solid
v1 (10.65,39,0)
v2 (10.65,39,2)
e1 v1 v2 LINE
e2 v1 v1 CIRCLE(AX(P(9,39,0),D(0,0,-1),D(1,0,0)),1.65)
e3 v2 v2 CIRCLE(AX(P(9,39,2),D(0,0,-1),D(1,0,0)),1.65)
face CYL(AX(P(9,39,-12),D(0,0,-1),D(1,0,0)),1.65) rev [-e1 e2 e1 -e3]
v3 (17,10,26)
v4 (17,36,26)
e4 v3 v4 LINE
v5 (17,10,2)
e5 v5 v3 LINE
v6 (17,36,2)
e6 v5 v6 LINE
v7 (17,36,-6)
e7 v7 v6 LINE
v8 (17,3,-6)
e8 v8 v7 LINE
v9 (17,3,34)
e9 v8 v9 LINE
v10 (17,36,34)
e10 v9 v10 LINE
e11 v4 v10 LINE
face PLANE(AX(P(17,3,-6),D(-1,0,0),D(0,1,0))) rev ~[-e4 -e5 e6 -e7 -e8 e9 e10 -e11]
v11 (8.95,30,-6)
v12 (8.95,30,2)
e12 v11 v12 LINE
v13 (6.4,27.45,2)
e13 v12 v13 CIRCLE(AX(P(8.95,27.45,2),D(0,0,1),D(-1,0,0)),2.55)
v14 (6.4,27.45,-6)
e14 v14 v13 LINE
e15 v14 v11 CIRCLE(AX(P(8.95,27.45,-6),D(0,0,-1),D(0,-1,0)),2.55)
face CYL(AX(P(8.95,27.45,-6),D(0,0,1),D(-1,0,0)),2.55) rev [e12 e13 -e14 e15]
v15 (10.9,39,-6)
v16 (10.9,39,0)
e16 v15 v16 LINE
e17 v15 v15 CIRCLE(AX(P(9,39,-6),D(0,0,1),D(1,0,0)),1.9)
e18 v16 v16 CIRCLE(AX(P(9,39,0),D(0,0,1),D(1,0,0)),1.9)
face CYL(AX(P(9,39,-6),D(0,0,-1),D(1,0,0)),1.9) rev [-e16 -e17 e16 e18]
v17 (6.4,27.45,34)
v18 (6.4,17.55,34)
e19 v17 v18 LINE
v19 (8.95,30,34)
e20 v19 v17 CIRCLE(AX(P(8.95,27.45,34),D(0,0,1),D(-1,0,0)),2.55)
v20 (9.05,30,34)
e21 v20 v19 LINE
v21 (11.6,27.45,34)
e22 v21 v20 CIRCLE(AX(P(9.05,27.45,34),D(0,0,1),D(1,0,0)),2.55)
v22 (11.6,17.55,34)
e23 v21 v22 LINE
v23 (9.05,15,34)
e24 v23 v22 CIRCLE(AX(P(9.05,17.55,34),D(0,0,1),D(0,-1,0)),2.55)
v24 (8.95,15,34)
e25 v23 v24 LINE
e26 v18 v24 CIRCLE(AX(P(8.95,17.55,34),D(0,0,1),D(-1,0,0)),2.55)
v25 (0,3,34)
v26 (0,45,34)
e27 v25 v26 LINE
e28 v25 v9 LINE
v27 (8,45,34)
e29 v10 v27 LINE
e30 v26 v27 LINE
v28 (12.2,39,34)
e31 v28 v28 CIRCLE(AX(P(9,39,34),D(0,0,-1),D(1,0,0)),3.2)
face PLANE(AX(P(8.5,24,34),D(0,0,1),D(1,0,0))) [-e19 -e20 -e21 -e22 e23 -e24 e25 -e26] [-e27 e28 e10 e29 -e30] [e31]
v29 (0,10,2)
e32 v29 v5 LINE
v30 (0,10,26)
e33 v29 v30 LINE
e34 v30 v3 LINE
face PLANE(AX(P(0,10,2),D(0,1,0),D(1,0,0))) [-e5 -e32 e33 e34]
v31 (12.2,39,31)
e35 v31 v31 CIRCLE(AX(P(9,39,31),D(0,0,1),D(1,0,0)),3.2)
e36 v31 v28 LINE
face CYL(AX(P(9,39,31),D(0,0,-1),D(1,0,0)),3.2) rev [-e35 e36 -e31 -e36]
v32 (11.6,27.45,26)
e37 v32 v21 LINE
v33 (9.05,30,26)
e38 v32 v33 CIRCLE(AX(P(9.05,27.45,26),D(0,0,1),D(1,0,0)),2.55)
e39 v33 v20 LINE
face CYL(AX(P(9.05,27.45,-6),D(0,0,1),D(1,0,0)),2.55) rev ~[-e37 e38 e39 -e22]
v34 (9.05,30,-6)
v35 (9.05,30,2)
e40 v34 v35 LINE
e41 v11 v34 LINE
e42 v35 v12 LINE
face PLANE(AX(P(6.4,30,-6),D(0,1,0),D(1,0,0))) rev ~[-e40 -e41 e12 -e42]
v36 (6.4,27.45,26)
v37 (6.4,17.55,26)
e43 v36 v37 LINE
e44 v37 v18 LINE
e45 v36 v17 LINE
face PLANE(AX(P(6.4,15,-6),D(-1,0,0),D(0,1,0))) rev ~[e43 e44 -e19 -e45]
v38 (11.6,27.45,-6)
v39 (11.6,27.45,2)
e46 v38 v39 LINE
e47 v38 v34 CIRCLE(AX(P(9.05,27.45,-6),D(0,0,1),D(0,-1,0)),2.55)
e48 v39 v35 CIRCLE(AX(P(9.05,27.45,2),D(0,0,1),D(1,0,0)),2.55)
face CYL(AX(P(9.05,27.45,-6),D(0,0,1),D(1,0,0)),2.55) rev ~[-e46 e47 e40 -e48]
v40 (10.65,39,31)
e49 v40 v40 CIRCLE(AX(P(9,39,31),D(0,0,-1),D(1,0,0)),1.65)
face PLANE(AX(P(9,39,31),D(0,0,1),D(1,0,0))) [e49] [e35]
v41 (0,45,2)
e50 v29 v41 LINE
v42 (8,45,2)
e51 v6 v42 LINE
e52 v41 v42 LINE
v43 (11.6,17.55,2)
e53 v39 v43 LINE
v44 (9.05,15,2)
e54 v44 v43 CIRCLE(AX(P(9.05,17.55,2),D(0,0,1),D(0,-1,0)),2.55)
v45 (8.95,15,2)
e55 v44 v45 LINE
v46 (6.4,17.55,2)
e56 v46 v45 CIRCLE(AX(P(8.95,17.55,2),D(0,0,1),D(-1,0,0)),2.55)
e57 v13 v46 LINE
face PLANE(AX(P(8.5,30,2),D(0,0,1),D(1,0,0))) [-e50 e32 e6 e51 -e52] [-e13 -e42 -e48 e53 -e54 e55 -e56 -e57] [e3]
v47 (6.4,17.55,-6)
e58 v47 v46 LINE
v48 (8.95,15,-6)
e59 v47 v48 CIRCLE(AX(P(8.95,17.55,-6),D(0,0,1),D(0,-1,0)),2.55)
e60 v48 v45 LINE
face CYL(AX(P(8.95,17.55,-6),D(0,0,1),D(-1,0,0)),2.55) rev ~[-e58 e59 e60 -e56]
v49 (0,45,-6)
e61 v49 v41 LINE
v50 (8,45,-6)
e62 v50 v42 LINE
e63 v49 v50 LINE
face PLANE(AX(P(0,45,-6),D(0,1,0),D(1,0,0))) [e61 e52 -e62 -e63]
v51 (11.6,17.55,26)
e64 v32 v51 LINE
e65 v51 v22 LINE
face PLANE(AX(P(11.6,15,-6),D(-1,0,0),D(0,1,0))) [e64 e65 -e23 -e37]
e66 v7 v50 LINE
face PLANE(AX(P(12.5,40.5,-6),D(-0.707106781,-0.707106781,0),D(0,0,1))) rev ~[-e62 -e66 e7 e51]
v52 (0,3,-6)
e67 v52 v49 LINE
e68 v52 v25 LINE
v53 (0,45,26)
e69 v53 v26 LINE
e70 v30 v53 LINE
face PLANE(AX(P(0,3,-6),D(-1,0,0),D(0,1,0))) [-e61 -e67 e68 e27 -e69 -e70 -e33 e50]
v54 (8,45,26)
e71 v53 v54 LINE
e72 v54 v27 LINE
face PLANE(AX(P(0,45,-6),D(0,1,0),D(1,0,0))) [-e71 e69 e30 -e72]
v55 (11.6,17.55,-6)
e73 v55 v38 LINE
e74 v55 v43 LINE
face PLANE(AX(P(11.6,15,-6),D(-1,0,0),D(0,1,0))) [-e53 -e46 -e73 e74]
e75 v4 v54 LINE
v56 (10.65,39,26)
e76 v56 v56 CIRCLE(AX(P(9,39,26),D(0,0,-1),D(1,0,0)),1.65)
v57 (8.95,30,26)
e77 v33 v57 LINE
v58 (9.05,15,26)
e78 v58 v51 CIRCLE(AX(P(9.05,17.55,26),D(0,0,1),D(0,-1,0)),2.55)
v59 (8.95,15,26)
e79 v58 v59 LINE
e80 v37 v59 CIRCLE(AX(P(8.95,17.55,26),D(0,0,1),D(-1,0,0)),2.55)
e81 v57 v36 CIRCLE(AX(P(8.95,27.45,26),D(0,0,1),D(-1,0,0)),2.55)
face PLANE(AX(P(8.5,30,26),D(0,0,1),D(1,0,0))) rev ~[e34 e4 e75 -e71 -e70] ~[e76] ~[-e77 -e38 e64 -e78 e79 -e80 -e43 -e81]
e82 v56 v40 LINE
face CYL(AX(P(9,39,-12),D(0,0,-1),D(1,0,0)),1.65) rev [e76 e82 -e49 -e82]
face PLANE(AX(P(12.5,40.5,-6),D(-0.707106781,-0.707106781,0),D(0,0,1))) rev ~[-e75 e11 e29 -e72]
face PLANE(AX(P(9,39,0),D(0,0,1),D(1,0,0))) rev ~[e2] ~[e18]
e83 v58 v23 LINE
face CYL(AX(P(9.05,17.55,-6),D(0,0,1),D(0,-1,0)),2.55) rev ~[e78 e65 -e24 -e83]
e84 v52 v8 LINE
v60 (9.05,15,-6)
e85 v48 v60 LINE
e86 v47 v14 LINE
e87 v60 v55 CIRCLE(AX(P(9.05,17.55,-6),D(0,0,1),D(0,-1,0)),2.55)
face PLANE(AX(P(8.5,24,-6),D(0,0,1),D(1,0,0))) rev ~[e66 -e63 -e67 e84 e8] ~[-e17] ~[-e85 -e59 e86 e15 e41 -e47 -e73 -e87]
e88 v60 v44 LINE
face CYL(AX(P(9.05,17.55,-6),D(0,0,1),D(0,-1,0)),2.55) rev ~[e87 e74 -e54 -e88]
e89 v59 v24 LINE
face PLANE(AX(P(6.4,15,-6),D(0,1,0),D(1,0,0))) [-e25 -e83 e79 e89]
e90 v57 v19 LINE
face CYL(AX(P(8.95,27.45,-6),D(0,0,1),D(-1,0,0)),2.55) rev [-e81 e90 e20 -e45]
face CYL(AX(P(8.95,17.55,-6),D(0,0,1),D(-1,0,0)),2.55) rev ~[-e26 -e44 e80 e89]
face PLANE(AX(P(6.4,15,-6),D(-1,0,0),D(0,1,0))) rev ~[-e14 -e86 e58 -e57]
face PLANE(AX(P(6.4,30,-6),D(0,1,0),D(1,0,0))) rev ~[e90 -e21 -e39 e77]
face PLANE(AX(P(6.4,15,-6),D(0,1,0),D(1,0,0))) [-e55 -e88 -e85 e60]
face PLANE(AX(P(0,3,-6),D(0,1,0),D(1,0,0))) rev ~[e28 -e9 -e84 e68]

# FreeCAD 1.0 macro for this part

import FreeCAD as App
import Part
import Sketcher


def edges_at(feature, points):
    """Names of the edges that pass closest to the given points."""
    edges = feature.Shape.Edges
    near = lambda p: min(range(len(edges)), key=lambda i: edges[i].distToShape(Part.Vertex(*p))[0])
    return sorted({f"Edge{near(p) + 1}" for p in points})

doc = App.newDocument("Part")
body = doc.addObject("PartDesign::Body", "Body")

# Sketch on XY plane
sketch1 = doc.addObject("Sketcher::SketchObject", "Sketch")
body.addObject(sketch1)
sketch1.AttachmentSupport = (doc.XY_Plane, [""])
sketch1.MapMode = "FlatFace"
sketch1.AttachmentOffset = App.Placement(App.Vector(0, 0, -6), App.Rotation())
sketch1.addGeometry([
    Part.LineSegment(App.Vector(6, 30, 0), App.Vector(6, 15, 0)),
    Part.LineSegment(App.Vector(6, 15, 0), App.Vector(12, 15, 0)),
    Part.LineSegment(App.Vector(12, 15, 0), App.Vector(12, 30, 0)),
    Part.LineSegment(App.Vector(12, 30, 0), App.Vector(6, 30, 0)),
], False)
sketch1.addConstraint([
    Sketcher.Constraint("Coincident", 0, 2, 1, 1),
    Sketcher.Constraint("Coincident", 1, 2, 2, 1),
    Sketcher.Constraint("Coincident", 2, 2, 3, 1),
    Sketcher.Constraint("Coincident", 3, 2, 0, 1),
    Sketcher.Constraint("Vertical", 0),
    Sketcher.Constraint("Horizontal", 1),
    Sketcher.Constraint("Vertical", 2),
    Sketcher.Constraint("Horizontal", 3),
    Sketcher.Constraint("DistanceY", 0, 2, 0, 1, 15.0),
    Sketcher.Constraint("DistanceX", 1, 1, 1, 2, 5.2),
    Sketcher.Constraint("DistanceY", -1, 1, 0, 2, 15.0),
    Sketcher.Constraint("DistanceX", -1, 1, 0, 2, 6.4),
])
pad1 = doc.addObject("PartDesign::Pad", "Pad")
body.addObject(pad1)
pad1.Profile = sketch1
pad1.Length = 67
doc.recompute()

fillet = doc.addObject("PartDesign::Fillet", "Fillet")
body.addObject(fillet)
fillet.Base = (pad1, edges_at(pad1, [
    (6.4, 15, 27.5),
    (6.4, 30, 27.5),
    (11.6, 15, 27.5),
    (11.6, 30, 27.5),
]))
fillet.Radius = 2.55
body2 = doc.addObject("PartDesign::Body", "Body001")

# Sketch on XY plane
sketch2 = doc.addObject("Sketcher::SketchObject", "Sketch001")
body2.addObject(sketch2)
sketch2.AttachmentSupport = (doc.getObject("XY_Plane001"), [""])
sketch2.MapMode = "FlatFace"
sketch2.AttachmentOffset = App.Placement(App.Vector(0, 0, 2), App.Rotation())
sketch2.addGeometry([
    Part.LineSegment(App.Vector(0, 50, 0), App.Vector(0, 10, 0)),
    Part.LineSegment(App.Vector(0, 10, 0), App.Vector(17, 10, 0)),
    Part.LineSegment(App.Vector(17, 10, 0), App.Vector(17, 50, 0)),
    Part.LineSegment(App.Vector(17, 50, 0), App.Vector(0, 50, 0)),
], False)
sketch2.addConstraint([
    Sketcher.Constraint("Coincident", 0, 2, 1, 1),
    Sketcher.Constraint("Coincident", 1, 2, 2, 1),
    Sketcher.Constraint("Coincident", 2, 2, 3, 1),
    Sketcher.Constraint("Coincident", 3, 2, 0, 1),
    Sketcher.Constraint("Vertical", 0),
    Sketcher.Constraint("Horizontal", 1),
    Sketcher.Constraint("Vertical", 2),
    Sketcher.Constraint("Horizontal", 3),
    Sketcher.Constraint("PointOnObject", 0, 2, -2),
    Sketcher.Constraint("DistanceX", 1, 1, 1, 2, 17.0),
    Sketcher.Constraint("DistanceY", 0, 2, 0, 1, 40.0),
    Sketcher.Constraint("DistanceY", -1, 1, 0, 2, 10.0),
])
pad2 = doc.addObject("PartDesign::Pad", "Pad001")
body2.addObject(pad2)
pad2.Profile = sketch2
pad2.Length = 24
body3 = doc.addObject("PartDesign::Body", "Body002")

# Sketch on XY plane
sketch3 = doc.addObject("Sketcher::SketchObject", "Sketch002")
body3.addObject(sketch3)
sketch3.AttachmentSupport = (doc.getObject("XY_Plane002"), [""])
sketch3.MapMode = "FlatFace"
sketch3.AttachmentOffset = App.Placement(App.Vector(0, 0, 31), App.Rotation())
sketch3.addGeometry(Part.Circle(App.Vector(9, 39, 0), App.Vector(0, 0, 1), 3.2), False)
sketch3.addConstraint([
    Sketcher.Constraint("Diameter", 0, 6.4),
    Sketcher.Constraint("DistanceX", -1, 1, 0, 3, 9.0),
    Sketcher.Constraint("DistanceY", -1, 1, 0, 3, 39.0),
])
pad3 = doc.addObject("PartDesign::Pad", "Pad002")
body3.addObject(pad3)
pad3.Profile = sketch3
pad3.Length = 4
body4 = doc.addObject("PartDesign::Body", "Body003")

# Sketch on XY plane
sketch4 = doc.addObject("Sketcher::SketchObject", "Sketch003")
body4.addObject(sketch4)
sketch4.AttachmentSupport = (doc.getObject("XY_Plane003"), [""])
sketch4.MapMode = "FlatFace"
sketch4.AttachmentOffset = App.Placement(App.Vector(0, 0, -6), App.Rotation())
sketch4.addGeometry(Part.Circle(App.Vector(9, 39, 0), App.Vector(0, 0, 1), 1.9), False)
sketch4.addConstraint([
    Sketcher.Constraint("Diameter", 0, 3.8),
    Sketcher.Constraint("DistanceX", -1, 1, 0, 3, 9.0),
    Sketcher.Constraint("DistanceY", -1, 1, 0, 3, 39.0),
])
pad4 = doc.addObject("PartDesign::Pad", "Pad003")
body4.addObject(pad4)
pad4.Profile = sketch4
pad4.Length = 6
body5 = doc.addObject("PartDesign::Body", "Body004")

# Sketch on XY plane
sketch5 = doc.addObject("Sketcher::SketchObject", "Sketch004")
body5.addObject(sketch5)
sketch5.AttachmentSupport = (doc.getObject("XY_Plane004"), [""])
sketch5.MapMode = "FlatFace"
sketch5.AttachmentOffset = App.Placement(App.Vector(0, 0, -12), App.Rotation())
sketch5.addGeometry(Part.Circle(App.Vector(9, 39, 0), App.Vector(0, 0, 1), 1.6), False)
sketch5.addConstraint([
    Sketcher.Constraint("Diameter", 0, 3.3),
    Sketcher.Constraint("DistanceX", -1, 1, 0, 3, 9.0),
    Sketcher.Constraint("DistanceY", -1, 1, 0, 3, 39.0),
])
pad5 = doc.addObject("PartDesign::Pad", "Pad004")
body5.addObject(pad5)
pad5.Profile = sketch5
pad5.Length = 54
body6 = doc.addObject("PartDesign::Body", "Body005")

# Sketch on XY plane
sketch6 = doc.addObject("Sketcher::SketchObject", "Sketch005")
body6.addObject(sketch6)
sketch6.AttachmentSupport = (doc.getObject("XY_Plane005"), [""])
sketch6.MapMode = "FlatFace"
sketch6.AttachmentOffset = App.Placement(App.Vector(0, 0, -6), App.Rotation())
sketch6.addGeometry([
    Part.LineSegment(App.Vector(0, 45, 0), App.Vector(0, 3, 0)),
    Part.LineSegment(App.Vector(0, 3, 0), App.Vector(17, 3, 0)),
    Part.LineSegment(App.Vector(17, 3, 0), App.Vector(17, 45, 0)),
    Part.LineSegment(App.Vector(17, 45, 0), App.Vector(0, 45, 0)),
], False)
sketch6.addConstraint([
    Sketcher.Constraint("Coincident", 0, 2, 1, 1),
    Sketcher.Constraint("Coincident", 1, 2, 2, 1),
    Sketcher.Constraint("Coincident", 2, 2, 3, 1),
    Sketcher.Constraint("Coincident", 3, 2, 0, 1),
    Sketcher.Constraint("Vertical", 0),
    Sketcher.Constraint("Horizontal", 1),
    Sketcher.Constraint("Vertical", 2),
    Sketcher.Constraint("Horizontal", 3),
    Sketcher.Constraint("PointOnObject", 0, 2, -2),
    Sketcher.Constraint("DistanceX", 1, 1, 1, 2, 17.0),
    Sketcher.Constraint("DistanceY", 0, 2, 0, 1, 42.0),
    Sketcher.Constraint("DistanceY", -1, 1, 0, 2, 3.0),
])
pad6 = doc.addObject("PartDesign::Pad", "Pad005")
body6.addObject(pad6)
pad6.Profile = sketch6
pad6.Length = 40
doc.recompute()

chamfer = doc.addObject("PartDesign::Chamfer", "Chamfer")
body6.addObject(chamfer)
chamfer.Base = (pad6, edges_at(pad6, [(17, 45, 14)]))
chamfer.Size = 9
doc.recompute()

boolean = doc.addObject("PartDesign::Boolean", "Boolean")
body6.addObject(boolean)
boolean.Type = "Cut"
boolean.addObjects([body5])
doc.recompute()

boolean2 = doc.addObject("PartDesign::Boolean", "Boolean001")
body6.addObject(boolean2)
boolean2.Type = "Cut"
boolean2.addObjects([body4])
doc.recompute()

boolean3 = doc.addObject("PartDesign::Boolean", "Boolean002")
body6.addObject(boolean3)
boolean3.Type = "Cut"
boolean3.addObjects([body3])
doc.recompute()

boolean4 = doc.addObject("PartDesign::Boolean", "Boolean003")
body6.addObject(boolean4)
boolean4.Type = "Cut"
boolean4.addObjects([body2])
doc.recompute()

boolean5 = doc.addObject("PartDesign::Boolean", "Boolean004")
body6.addObject(boolean5)
boolean5.Type = "Cut"
boolean5.addObjects([body])

doc.recompute()
